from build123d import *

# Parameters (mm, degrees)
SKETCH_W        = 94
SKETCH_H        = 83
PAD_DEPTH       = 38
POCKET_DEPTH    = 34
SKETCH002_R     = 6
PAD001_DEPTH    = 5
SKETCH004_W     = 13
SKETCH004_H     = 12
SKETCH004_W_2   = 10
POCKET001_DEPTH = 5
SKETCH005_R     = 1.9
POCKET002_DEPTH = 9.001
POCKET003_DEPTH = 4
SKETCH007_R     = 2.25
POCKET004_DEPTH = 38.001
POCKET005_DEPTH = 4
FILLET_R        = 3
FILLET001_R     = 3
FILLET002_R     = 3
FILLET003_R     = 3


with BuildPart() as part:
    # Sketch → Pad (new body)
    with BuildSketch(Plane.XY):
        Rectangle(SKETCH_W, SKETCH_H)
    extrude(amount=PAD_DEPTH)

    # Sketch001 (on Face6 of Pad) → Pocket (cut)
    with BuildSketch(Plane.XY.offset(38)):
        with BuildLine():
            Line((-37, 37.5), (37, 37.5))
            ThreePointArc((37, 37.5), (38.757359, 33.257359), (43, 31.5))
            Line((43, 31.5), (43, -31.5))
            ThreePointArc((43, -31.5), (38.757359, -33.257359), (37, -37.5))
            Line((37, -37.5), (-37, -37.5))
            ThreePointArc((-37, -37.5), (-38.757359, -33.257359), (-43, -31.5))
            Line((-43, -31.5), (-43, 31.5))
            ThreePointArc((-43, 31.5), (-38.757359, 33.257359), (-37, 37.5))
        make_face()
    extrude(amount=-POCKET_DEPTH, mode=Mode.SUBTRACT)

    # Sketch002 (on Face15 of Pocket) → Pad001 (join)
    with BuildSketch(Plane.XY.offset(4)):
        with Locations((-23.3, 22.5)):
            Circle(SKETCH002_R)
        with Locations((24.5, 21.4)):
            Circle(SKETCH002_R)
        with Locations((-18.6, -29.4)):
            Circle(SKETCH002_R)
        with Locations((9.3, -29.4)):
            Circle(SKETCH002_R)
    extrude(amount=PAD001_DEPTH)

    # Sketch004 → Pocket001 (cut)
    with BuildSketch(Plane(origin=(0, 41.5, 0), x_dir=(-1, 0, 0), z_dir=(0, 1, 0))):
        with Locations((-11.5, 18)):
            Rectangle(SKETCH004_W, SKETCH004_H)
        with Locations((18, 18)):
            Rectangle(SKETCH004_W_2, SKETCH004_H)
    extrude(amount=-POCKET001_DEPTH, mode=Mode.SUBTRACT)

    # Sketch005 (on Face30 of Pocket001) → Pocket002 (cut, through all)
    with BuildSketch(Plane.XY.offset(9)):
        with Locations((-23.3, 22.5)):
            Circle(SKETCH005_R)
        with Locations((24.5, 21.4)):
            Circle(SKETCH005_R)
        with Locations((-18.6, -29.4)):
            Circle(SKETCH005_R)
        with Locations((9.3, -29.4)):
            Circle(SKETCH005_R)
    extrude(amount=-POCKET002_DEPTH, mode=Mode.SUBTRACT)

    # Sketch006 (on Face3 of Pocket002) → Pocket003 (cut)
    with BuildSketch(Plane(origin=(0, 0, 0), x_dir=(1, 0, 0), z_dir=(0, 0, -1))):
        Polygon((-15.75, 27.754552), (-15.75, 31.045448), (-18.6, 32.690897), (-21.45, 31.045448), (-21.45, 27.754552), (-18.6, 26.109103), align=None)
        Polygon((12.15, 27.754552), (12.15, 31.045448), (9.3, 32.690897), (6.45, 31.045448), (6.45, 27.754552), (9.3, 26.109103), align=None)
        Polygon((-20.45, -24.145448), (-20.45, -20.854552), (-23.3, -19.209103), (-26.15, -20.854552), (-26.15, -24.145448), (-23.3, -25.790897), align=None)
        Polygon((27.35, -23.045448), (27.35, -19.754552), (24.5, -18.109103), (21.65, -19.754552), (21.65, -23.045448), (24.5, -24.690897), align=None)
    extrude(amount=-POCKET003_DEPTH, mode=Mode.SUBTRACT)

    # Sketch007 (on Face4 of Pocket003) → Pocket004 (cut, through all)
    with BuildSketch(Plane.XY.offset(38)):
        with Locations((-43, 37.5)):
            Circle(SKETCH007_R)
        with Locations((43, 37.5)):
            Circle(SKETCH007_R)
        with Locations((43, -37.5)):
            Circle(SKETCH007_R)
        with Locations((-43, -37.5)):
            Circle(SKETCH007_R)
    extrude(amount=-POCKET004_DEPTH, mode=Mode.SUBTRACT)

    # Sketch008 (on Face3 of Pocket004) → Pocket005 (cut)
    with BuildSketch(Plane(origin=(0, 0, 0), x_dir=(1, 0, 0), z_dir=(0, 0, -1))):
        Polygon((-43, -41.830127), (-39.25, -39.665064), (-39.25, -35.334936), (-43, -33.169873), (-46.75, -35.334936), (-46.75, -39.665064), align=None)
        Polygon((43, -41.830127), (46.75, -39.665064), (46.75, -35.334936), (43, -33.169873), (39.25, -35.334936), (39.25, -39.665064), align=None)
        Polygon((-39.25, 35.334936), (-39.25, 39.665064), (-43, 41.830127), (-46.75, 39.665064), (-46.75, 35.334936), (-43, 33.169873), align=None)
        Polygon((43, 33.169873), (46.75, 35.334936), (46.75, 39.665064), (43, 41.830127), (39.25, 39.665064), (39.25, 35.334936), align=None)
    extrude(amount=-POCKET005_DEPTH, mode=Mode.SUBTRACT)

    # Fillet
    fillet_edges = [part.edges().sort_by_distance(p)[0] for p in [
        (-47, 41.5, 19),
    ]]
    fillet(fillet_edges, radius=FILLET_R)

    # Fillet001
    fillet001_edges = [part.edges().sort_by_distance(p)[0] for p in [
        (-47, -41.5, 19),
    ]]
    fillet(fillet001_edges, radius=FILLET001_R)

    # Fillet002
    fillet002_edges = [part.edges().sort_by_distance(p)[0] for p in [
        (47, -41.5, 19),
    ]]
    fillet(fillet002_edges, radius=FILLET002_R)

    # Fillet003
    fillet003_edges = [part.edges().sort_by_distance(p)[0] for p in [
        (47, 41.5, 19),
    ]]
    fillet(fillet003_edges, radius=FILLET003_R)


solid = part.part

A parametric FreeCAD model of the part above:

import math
import FreeCAD as App
import Part
import Sketcher
from FreeCAD import Vector
Q = App.Units.Quantity


def edges_at(feature, points):
    """Names of the edges that pass closest to the given points."""
    edges = feature.Shape.Edges
    near = lambda p: min(range(len(edges)), key=lambda i: edges[i].distToShape(Part.Vertex(*p))[0])
    return sorted({f"Edge{near(p) + 1}" for p in points})


def add_polygon(sketch, points):
    """Adds a closed chain of lines whose ends are joined by coincident constraints."""
    first, n = sketch.GeometryCount, len(points)
    for a, b in zip(points, points[1:] + points[:1]):
        sketch.addGeometry(Part.LineSegment(App.Vector(*a, 0), App.Vector(*b, 0)), False)
    for i in range(n):
        sketch.addConstraint(Sketcher.Constraint("Coincident", first + i, 2, first + (i + 1) % n, 1))

doc = App.newDocument("Part")
body = doc.addObject("PartDesign::Body", "Body")

# Sketch on XY plane
sketch1 = body.newObject("Sketcher::SketchObject", "Sketch")
sketch1.AttachmentSupport = (doc.getObject("XY_Plane"), [""])
sketch1.MapMode = "FlatFace"
add_polygon(sketch1, [(-47, 41.5), (-47, -41.5), (47, -41.5), (47, 41.5)])  # lines 0-3
sketch1.addConstraint(Sketcher.Constraint("Vertical", 0))
sketch1.addConstraint(Sketcher.Constraint("Horizontal", 1))
sketch1.addConstraint(Sketcher.Constraint("Vertical", 2))
sketch1.addConstraint(Sketcher.Constraint("Horizontal", 3))
sketch1.addConstraint(Sketcher.Constraint("Symmetric", 0, 2, 2, 2, -1, 1))
sketch1.addConstraint(Sketcher.Constraint("DistanceX", 1, 1, 1, 2, Q("94 mm")))
sketch1.addConstraint(Sketcher.Constraint("DistanceY", 0, 2, 0, 1, Q("83 mm")))
pad1 = body.newObject("PartDesign::Pad", "Pad")
pad1.Profile = sketch1
pad1.Length = 38

# Sketch on XY plane
sketch2 = body.newObject("Sketcher::SketchObject", "Sketch001")
sketch2.AttachmentSupport = (doc.getObject("XY_Plane"), [""])
sketch2.MapMode = "FlatFace"
sketch2.AttachmentOffset = App.Placement(Vector(0, 0, 38), App.Rotation())
sketch2.addGeometry(Part.LineSegment(Vector(37, 37.5, 0), Vector(-37, 37.5, 0)), False)
sketch2.addGeometry(Part.ArcOfCircle(Part.Circle(Vector(-42.999999, 37.499999, 0), Vector(0, 0, 1), 5.999999), math.radians(-90.00001), math.radians(0.00001)), False)
sketch2.addGeometry(Part.LineSegment(Vector(-43, 31.5, 0), Vector(-43, -31.5, 0)), False)
sketch2.addGeometry(Part.ArcOfCircle(Part.Circle(Vector(-42.999999, -37.499999, 0), Vector(0, 0, 1), 5.999999), math.radians(-0.00001), math.radians(90.00001)), False)
sketch2.addGeometry(Part.LineSegment(Vector(-37, -37.5, 0), Vector(37, -37.5, 0)), False)
sketch2.addGeometry(Part.ArcOfCircle(Part.Circle(Vector(42.999999, -37.499999, 0), Vector(0, 0, 1), 5.999999), math.radians(89.99999), math.radians(180.00001)), False)
sketch2.addGeometry(Part.LineSegment(Vector(43, -31.5, 0), Vector(43, 31.5, 0)), False)
sketch2.addGeometry(Part.ArcOfCircle(Part.Circle(Vector(42.999999, 37.499999, 0), Vector(0, 0, 1), 5.999999), math.radians(179.99999), math.radians(270.00001)), False)
sketch2.addConstraint(Sketcher.Constraint("Coincident", 0, 2, 1, 2))
sketch2.addConstraint(Sketcher.Constraint("Coincident", 1, 1, 2, 1))
sketch2.addConstraint(Sketcher.Constraint("Coincident", 2, 2, 3, 2))
sketch2.addConstraint(Sketcher.Constraint("Coincident", 3, 1, 4, 1))
sketch2.addConstraint(Sketcher.Constraint("Coincident", 4, 2, 5, 2))
sketch2.addConstraint(Sketcher.Constraint("Coincident", 5, 1, 6, 1))
sketch2.addConstraint(Sketcher.Constraint("Coincident", 6, 2, 7, 2))
sketch2.addConstraint(Sketcher.Constraint("Coincident", 7, 1, 0, 1))
sketch2.addConstraint(Sketcher.Constraint("Horizontal", 0))
sketch2.addConstraint(Sketcher.Constraint("Vertical", 2))
sketch2.addConstraint(Sketcher.Constraint("Horizontal", 4))
sketch2.addConstraint(Sketcher.Constraint("Vertical", 6))
sketch2.addConstraint(Sketcher.Constraint("Equal", 1, 3))
sketch2.addConstraint(Sketcher.Constraint("Equal", 3, 5))
sketch2.addConstraint(Sketcher.Constraint("Equal", 5, 7))
sketch2.addConstraint(Sketcher.Constraint("Symmetric", 1, 3, 5, 3, -1, 1))
sketch2.addConstraint(Sketcher.Constraint("Symmetric", 3, 3, 7, 3, -1, 1))
sketch2.addConstraint(Sketcher.Constraint("Symmetric", 3, 3, 5, 3, -2))
sketch2.addConstraint(Sketcher.Constraint("Horizontal", 7, 3, 0, 2))
sketch2.addConstraint(Sketcher.Constraint("Horizontal", 5, 3, 3, 1))
sketch2.addConstraint(Sketcher.Constraint("Vertical", 3, 3, 1, 1))
sketch2.addConstraint(Sketcher.Constraint("Vertical", 7, 3, 5, 1))
sketch2.addConstraint(Sketcher.Constraint("Radius", 1, Q("5.999999 mm")))
sketch2.addConstraint(Sketcher.Constraint("DistanceX", 0, 2, 0, 1, Q("74 mm")))
sketch2.addConstraint(Sketcher.Constraint("DistanceY", 2, 2, 2, 1, Q("63 mm")))
pocket1 = body.newObject("PartDesign::Pocket", "Pocket")
pocket1.Profile = sketch2
pocket1.Length = 34

# Sketch on XY plane
sketch3 = body.newObject("Sketcher::SketchObject", "Sketch002")
sketch3.AttachmentSupport = (doc.getObject("XY_Plane"), [""])
sketch3.MapMode = "FlatFace"
sketch3.AttachmentOffset = App.Placement(Vector(0, 0, 4), App.Rotation())
sketch3.addGeometry(Part.Circle(Vector(-23.3, 22.5, 0), Vector(0, 0, 1), 6), False)
sketch3.addGeometry(Part.Circle(Vector(24.5, 21.4, 0), Vector(0, 0, 1), 6), False)
sketch3.addGeometry(Part.Circle(Vector(-18.6, -29.4, 0), Vector(0, 0, 1), 6), False)
sketch3.addGeometry(Part.Circle(Vector(9.3, -29.4, 0), Vector(0, 0, 1), 6), False)
sketch3.addConstraint(Sketcher.Constraint("Equal", 0, 1))
sketch3.addConstraint(Sketcher.Constraint("Equal", 1, 2))
sketch3.addConstraint(Sketcher.Constraint("Equal", 2, 3))
sketch3.addConstraint(Sketcher.Constraint("Horizontal", 2, 3, 3, 3))
sketch3.addConstraint(Sketcher.Constraint("Diameter", 0, Q("12 mm")))
sketch3.addConstraint(Sketcher.Constraint("DistanceX", 0, 3, -1, 1, Q("23.3 mm")))
sketch3.addConstraint(Sketcher.Constraint("DistanceY", -1, 1, 0, 3, Q("22.5 mm")))
sketch3.addConstraint(Sketcher.Constraint("DistanceX", -1, 1, 1, 3, Q("24.5 mm")))
sketch3.addConstraint(Sketcher.Constraint("DistanceY", -1, 1, 1, 3, Q("21.4 mm")))
sketch3.addConstraint(Sketcher.Constraint("DistanceX", 2, 3, -1, 1, Q("18.6 mm")))
sketch3.addConstraint(Sketcher.Constraint("DistanceY", 2, 3, -1, 1, Q("29.4 mm")))
sketch3.addConstraint(Sketcher.Constraint("DistanceX", -1, 1, 3, 3, Q("9.3 mm")))
pad2 = body.newObject("PartDesign::Pad", "Pad001")
pad2.Profile = sketch3
pad2.Length = 5

# Sketch on XZ plane
sketch4 = body.newObject("Sketcher::SketchObject", "Sketch003")
sketch4.AttachmentSupport = (doc.getObject("XZ_Plane"), [""])
sketch4.MapMode = "FlatFace"
sketch4.AttachmentOffset = App.Placement(Vector(0, 0, -41.5), App.Rotation())
add_polygon(sketch4, [(18, 24), (18, 12), (5, 12), (5, 24)])  # lines 0-3
add_polygon(sketch4, [(-13, 24), (-13, 12), (-23, 12), (-23, 24)])  # lines 4-7
sketch4.addConstraint(Sketcher.Constraint("Vertical", 0))
sketch4.addConstraint(Sketcher.Constraint("Horizontal", 1))
sketch4.addConstraint(Sketcher.Constraint("Vertical", 2))
sketch4.addConstraint(Sketcher.Constraint("Horizontal", 3))
sketch4.addConstraint(Sketcher.Constraint("Vertical", 4))
sketch4.addConstraint(Sketcher.Constraint("Horizontal", 5))
sketch4.addConstraint(Sketcher.Constraint("Vertical", 6))
sketch4.addConstraint(Sketcher.Constraint("Horizontal", 7))
sketch4.addConstraint(Sketcher.Constraint("Horizontal", 1, 2, 4, 2))
sketch4.addConstraint(Sketcher.Constraint("Horizontal", 3, 2, 6, 2))
sketch4.addConstraint(Sketcher.Constraint("DistanceX", 1, 2, 1, 1, Q("13 mm")))
sketch4.addConstraint(Sketcher.Constraint("DistanceX", 5, 2, 5, 1, Q("10 mm")))
sketch4.addConstraint(Sketcher.Constraint("DistanceY", 0, 2, 0, 1, Q("12 mm")))
sketch4.addConstraint(Sketcher.Constraint("DistanceX", -1, 1, 0, 2, Q("18 mm")))
sketch4.addConstraint(Sketcher.Constraint("DistanceY", -1, 1, 0, 2, Q("12 mm")))
sketch4.addConstraint(Sketcher.Constraint("DistanceX", 4, 2, -1, 1, Q("13 mm")))
pocket2 = body.newObject("PartDesign::Pocket", "Pocket001")
pocket2.Profile = sketch4
pocket2.Length = 5
pocket2.Reversed = True

# Sketch on XY plane
sketch5 = body.newObject("Sketcher::SketchObject", "Sketch004")
sketch5.AttachmentSupport = (doc.getObject("XY_Plane"), [""])
sketch5.MapMode = "FlatFace"
sketch5.AttachmentOffset = App.Placement(Vector(0, 0, 9), App.Rotation())
sketch5.addGeometry(Part.Circle(Vector(-23.3, 22.5, 0), Vector(0, 0, 1), 1.9), False)
sketch5.addGeometry(Part.Circle(Vector(24.5, 21.4, 0), Vector(0, 0, 1), 1.9), False)
sketch5.addGeometry(Part.Circle(Vector(-18.6, -29.4, 0), Vector(0, 0, 1), 1.9), False)
sketch5.addGeometry(Part.Circle(Vector(9.3, -29.4, 0), Vector(0, 0, 1), 1.9), False)
sketch5.addConstraint(Sketcher.Constraint("Equal", 0, 1))
sketch5.addConstraint(Sketcher.Constraint("Equal", 1, 2))
sketch5.addConstraint(Sketcher.Constraint("Equal", 2, 3))
sketch5.addConstraint(Sketcher.Constraint("Horizontal", 2, 3, 3, 3))
sketch5.addConstraint(Sketcher.Constraint("Diameter", 0, Q("3.8 mm")))
sketch5.addConstraint(Sketcher.Constraint("DistanceX", 0, 3, -1, 1, Q("23.3 mm")))
sketch5.addConstraint(Sketcher.Constraint("DistanceY", -1, 1, 0, 3, Q("22.5 mm")))
sketch5.addConstraint(Sketcher.Constraint("DistanceX", -1, 1, 1, 3, Q("24.5 mm")))
sketch5.addConstraint(Sketcher.Constraint("DistanceY", -1, 1, 1, 3, Q("21.4 mm")))
sketch5.addConstraint(Sketcher.Constraint("DistanceX", 2, 3, -1, 1, Q("18.6 mm")))
sketch5.addConstraint(Sketcher.Constraint("DistanceY", 2, 3, -1, 1, Q("29.4 mm")))
sketch5.addConstraint(Sketcher.Constraint("DistanceX", -1, 1, 3, 3, Q("9.3 mm")))
pocket3 = body.newObject("PartDesign::Pocket", "Pocket002")
pocket3.Profile = sketch5
pocket3.Type = "ThroughAll"

# Sketch on XY plane
sketch6 = body.newObject("Sketcher::SketchObject", "Sketch005")
sketch6.AttachmentSupport = (doc.getObject("XY_Plane"), [""])
sketch6.MapMode = "FlatFace"
add_polygon(sketch6, [(-15.75, -27.754552), (-15.75, -31.045448), (-18.6, -32.690897), (-21.45, -31.045448), (-21.45, -27.754552), (-18.6, -26.109103)])  # lines 0-5
add_polygon(sketch6, [(12.15, -27.754552), (12.15, -31.045448), (9.3, -32.690897), (6.45, -31.045448), (6.45, -27.754552), (9.3, -26.109103)])  # lines 6-11
add_polygon(sketch6, [(-20.45, 24.145448), (-20.45, 20.854552), (-23.3, 19.209103), (-26.15, 20.854552), (-26.15, 24.145448), (-23.3, 25.790897)])  # lines 12-17
add_polygon(sketch6, [(27.35, 23.045448), (27.35, 19.754552), (24.5, 18.109103), (21.65, 19.754552), (21.65, 23.045448), (24.5, 24.690897)])  # lines 18-23
sketch6.addConstraint(Sketcher.Constraint("Vertical", 0))
sketch6.addConstraint(Sketcher.Constraint("Vertical", 3))
sketch6.addConstraint(Sketcher.Constraint("Vertical", 6))
sketch6.addConstraint(Sketcher.Constraint("Vertical", 9))
sketch6.addConstraint(Sketcher.Constraint("Vertical", 12))
sketch6.addConstraint(Sketcher.Constraint("Vertical", 15))
sketch6.addConstraint(Sketcher.Constraint("Vertical", 18))
sketch6.addConstraint(Sketcher.Constraint("Vertical", 21))
sketch6.addConstraint(Sketcher.Constraint("Parallel", 1, 4))
sketch6.addConstraint(Sketcher.Constraint("Parallel", 2, 5))
sketch6.addConstraint(Sketcher.Constraint("Parallel", 4, 7))
sketch6.addConstraint(Sketcher.Constraint("Parallel", 5, 8))
sketch6.addConstraint(Sketcher.Constraint("Parallel", 7, 10))
sketch6.addConstraint(Sketcher.Constraint("Parallel", 8, 11))
sketch6.addConstraint(Sketcher.Constraint("Parallel", 10, 13))
sketch6.addConstraint(Sketcher.Constraint("Parallel", 11, 14))
sketch6.addConstraint(Sketcher.Constraint("Parallel", 13, 16))
sketch6.addConstraint(Sketcher.Constraint("Parallel", 14, 17))
sketch6.addConstraint(Sketcher.Constraint("Parallel", 16, 19))
sketch6.addConstraint(Sketcher.Constraint("Parallel", 17, 20))
sketch6.addConstraint(Sketcher.Constraint("Parallel", 19, 22))
sketch6.addConstraint(Sketcher.Constraint("Parallel", 20, 23))
sketch6.addConstraint(Sketcher.Constraint("Horizontal", 0, 2, 2, 2))
sketch6.addConstraint(Sketcher.Constraint("Horizontal", 3, 2, 5, 2))
sketch6.addConstraint(Sketcher.Constraint("Horizontal", 2, 2, 6, 2))
sketch6.addConstraint(Sketcher.Constraint("Horizontal", 1, 2, 7, 2))
sketch6.addConstraint(Sketcher.Constraint("Horizontal", 6, 2, 8, 2))
sketch6.addConstraint(Sketcher.Constraint("Horizontal", 5, 2, 9, 2))
sketch6.addConstraint(Sketcher.Constraint("Horizontal", 4, 2, 10, 2))
sketch6.addConstraint(Sketcher.Constraint("Horizontal", 12, 2, 14, 2))
sketch6.addConstraint(Sketcher.Constraint("Horizontal", 15, 2, 17, 2))
sketch6.addConstraint(Sketcher.Constraint("Horizontal", 18, 2, 20, 2))
sketch6.addConstraint(Sketcher.Constraint("Horizontal", 21, 2, 23, 2))
sketch6.addConstraint(Sketcher.Constraint("Vertical", 1, 2, 4, 2))
sketch6.addConstraint(Sketcher.Constraint("Equal", 9, 12))
sketch6.addConstraint(Sketcher.Constraint("Equal", 15, 18))
sketch6.addConstraint(Sketcher.Constraint("Equal", 11, 13))
sketch6.addConstraint(Sketcher.Constraint("Equal", 17, 19))
sketch6.addConstraint(Sketcher.Constraint("Angle", 1, Q("-149.999989 deg")))
sketch6.addConstraint(Sketcher.Constraint("DistanceX", 3, 2, 12, 2, Q("1 mm")))
sketch6.addConstraint(Sketcher.Constraint("DistanceX", 1, 2, -1, 1, Q("18.6 mm")))
sketch6.addConstraint(Sketcher.Constraint("DistanceX", -1, 1, 7, 2, Q("9.3 mm")))
sketch6.addConstraint(Sketcher.Constraint("DistanceX", 13, 2, -1, 1, Q("23.3 mm")))
sketch6.addConstraint(Sketcher.Constraint("DistanceX", -1, 1, 19, 2, Q("24.5 mm")))
sketch6.addConstraint(Sketcher.Constraint("DistanceY", 2, 2, 12, 2, Q("51.9 mm")))
sketch6.addConstraint(Sketcher.Constraint("DistanceY", 18, 2, 12, 2, Q("1.1 mm")))
sketch6.addConstraint(Sketcher.Constraint("DistanceY", 0, 2, 0, 1, Q("3.290896 mm")))
sketch6.addConstraint(Sketcher.Constraint("DistanceY", 0, 2, -1, 1, Q("31.045448 mm")))
pocket4 = body.newObject("PartDesign::Pocket", "Pocket003")
pocket4.Profile = sketch6
pocket4.Length = 4
pocket4.Reversed = True

# Sketch on XY plane
sketch7 = body.newObject("Sketcher::SketchObject", "Sketch006")
sketch7.AttachmentSupport = (doc.getObject("XY_Plane"), [""])
sketch7.MapMode = "FlatFace"
sketch7.AttachmentOffset = App.Placement(Vector(0, 0, 38), App.Rotation())
sketch7.addGeometry(Part.Circle(Vector(-43, 37.5, 0), Vector(0, 0, 1), 2.25), False)
sketch7.addGeometry(Part.Circle(Vector(43, 37.5, 0), Vector(0, 0, 1), 2.25), False)
sketch7.addGeometry(Part.Circle(Vector(43, -37.5, 0), Vector(0, 0, 1), 2.25), False)
sketch7.addGeometry(Part.Circle(Vector(-43, -37.5, 0), Vector(0, 0, 1), 2.25), False)
sketch7.addConstraint(Sketcher.Constraint("Equal", 0, 1))
sketch7.addConstraint(Sketcher.Constraint("Equal", 1, 2))
sketch7.addConstraint(Sketcher.Constraint("Equal", 2, 3))
sketch7.addConstraint(Sketcher.Constraint("Symmetric", 0, 3, 2, 3, -1, 1))
sketch7.addConstraint(Sketcher.Constraint("Symmetric", 1, 3, 3, 3, -1, 1))
sketch7.addConstraint(Sketcher.Constraint("Symmetric", 0, 3, 1, 3, -2))
sketch7.addConstraint(Sketcher.Constraint("Diameter", 0, Q("4.5 mm")))
sketch7.addConstraint(Sketcher.Constraint("DistanceX", 0, 3, -1, 1, Q("43 mm")))
sketch7.addConstraint(Sketcher.Constraint("DistanceY", 2, 3, 1, 3, Q("75 mm")))
pocket5 = body.newObject("PartDesign::Pocket", "Pocket004")
pocket5.Profile = sketch7
pocket5.Type = "ThroughAll"

# Sketch on XY plane
sketch8 = body.newObject("Sketcher::SketchObject", "Sketch007")
sketch8.AttachmentSupport = (doc.getObject("XY_Plane"), [""])
sketch8.MapMode = "FlatFace"
add_polygon(sketch8, [(-43, 41.830127), (-39.25, 39.665064), (-39.25, 35.334936), (-43, 33.169873), (-46.75, 35.334936), (-46.75, 39.665064)])  # lines 0-5
add_polygon(sketch8, [(43, 41.830127), (46.75, 39.665064), (46.75, 35.334936), (43, 33.169873), (39.25, 35.334936), (39.25, 39.665064)])  # lines 6-11
add_polygon(sketch8, [(-39.25, -35.334936), (-39.25, -39.665064), (-43, -41.830127), (-46.75, -39.665064), (-46.75, -35.334936), (-43, -33.169873)])  # lines 12-17
add_polygon(sketch8, [(43, -33.169873), (46.75, -35.334936), (46.75, -39.665064), (43, -41.830127), (39.25, -39.665064), (39.25, -35.334936)])  # lines 18-23
sketch8.addConstraint(Sketcher.Constraint("Vertical", 1))
sketch8.addConstraint(Sketcher.Constraint("Vertical", 4))
sketch8.addConstraint(Sketcher.Constraint("Vertical", 7))
sketch8.addConstraint(Sketcher.Constraint("Vertical", 10))
sketch8.addConstraint(Sketcher.Constraint("Vertical", 12))
sketch8.addConstraint(Sketcher.Constraint("Vertical", 15))
sketch8.addConstraint(Sketcher.Constraint("Vertical", 19))
sketch8.addConstraint(Sketcher.Constraint("Vertical", 22))
sketch8.addConstraint(Sketcher.Constraint("Symmetric", 10, 2, 12, 2, -1, 1))
sketch8.addConstraint(Sketcher.Constraint("Symmetric", 11, 2, 13, 2, -1, 1))
sketch8.addConstraint(Sketcher.Constraint("Symmetric", 6, 2, 14, 2, -1, 1))
sketch8.addConstraint(Sketcher.Constraint("Symmetric", 8, 2, 16, 2, -1, 1))
sketch8.addConstraint(Sketcher.Constraint("Symmetric", 3, 2, 18, 2, -1, 1))
sketch8.addConstraint(Sketcher.Constraint("Symmetric", 5, 2, 20, 2, -1, 1))
sketch8.addConstraint(Sketcher.Constraint("Symmetric", 0, 2, 21, 2, -1, 1))
sketch8.addConstraint(Sketcher.Constraint("Symmetric", 2, 2, 23, 2, -1, 1))
sketch8.addConstraint(Sketcher.Constraint("Symmetric", 4, 2, 6, 2, -2))
sketch8.addConstraint(Sketcher.Constraint("Symmetric", 2, 2, 8, 2, -2))
sketch8.addConstraint(Sketcher.Constraint("Symmetric", 1, 2, 9, 2, -2))
sketch8.addConstraint(Sketcher.Constraint("Symmetric", 5, 2, 11, 2, -2))
sketch8.addConstraint(Sketcher.Constraint("Parallel", 0, 3))
sketch8.addConstraint(Sketcher.Constraint("Parallel", 2, 5))
sketch8.addConstraint(Sketcher.Constraint("Parallel", 3, 6))
sketch8.addConstraint(Sketcher.Constraint("Parallel", 5, 8))
sketch8.addConstraint(Sketcher.Constraint("Parallel", 8, 11))
sketch8.addConstraint(Sketcher.Constraint("Parallel", 13, 16))
sketch8.addConstraint(Sketcher.Constraint("Parallel", 14, 17))
sketch8.addConstraint(Sketcher.Constraint("Parallel", 16, 20))
sketch8.addConstraint(Sketcher.Constraint("Parallel", 20, 23))
sketch8.addConstraint(Sketcher.Constraint("Horizontal", 1, 2, 3, 2))
sketch8.addConstraint(Sketcher.Constraint("Horizontal", 0, 2, 4, 2))
sketch8.addConstraint(Sketcher.Constraint("Angle", 0, Q("-29.999994 deg")))
sketch8.addConstraint(Sketcher.Constraint("DistanceX", 2, 2, -1, 1, Q("43 mm")))
sketch8.addConstraint(Sketcher.Constraint("DistanceY", 12, 2, 1, 2, Q("75 mm")))
sketch8.addConstraint(Sketcher.Constraint("DistanceX", 3, 2, 1, 2, Q("7.5 mm")))
sketch8.addConstraint(Sketcher.Constraint("DistanceY", 1, 2, 1, 1, Q("4.330128 mm")))
pocket6 = body.newObject("PartDesign::Pocket", "Pocket005")
pocket6.Profile = sketch8
pocket6.Length = 4
pocket6.Reversed = True
doc.recompute()

fillet = body.newObject("PartDesign::Fillet", "Fillet")
fillet.Base = (pocket6, edges_at(pocket6, [(-47, 41.5, 19)]))
fillet.Radius = 3
doc.recompute()

fillet2 = body.newObject("PartDesign::Fillet", "Fillet001")
fillet2.Base = (fillet, edges_at(fillet, [(-47, -41.5, 19)]))
fillet2.Radius = 3
doc.recompute()

fillet3 = body.newObject("PartDesign::Fillet", "Fillet002")
fillet3.Base = (fillet2, edges_at(fillet2, [(47, -41.5, 19)]))
fillet3.Radius = 3
doc.recompute()

fillet4 = body.newObject("PartDesign::Fillet", "Fillet003")
fillet4.Base = (fillet3, edges_at(fillet3, [(47, 41.5, 19)]))
fillet4.Radius = 3

doc.recompute()
